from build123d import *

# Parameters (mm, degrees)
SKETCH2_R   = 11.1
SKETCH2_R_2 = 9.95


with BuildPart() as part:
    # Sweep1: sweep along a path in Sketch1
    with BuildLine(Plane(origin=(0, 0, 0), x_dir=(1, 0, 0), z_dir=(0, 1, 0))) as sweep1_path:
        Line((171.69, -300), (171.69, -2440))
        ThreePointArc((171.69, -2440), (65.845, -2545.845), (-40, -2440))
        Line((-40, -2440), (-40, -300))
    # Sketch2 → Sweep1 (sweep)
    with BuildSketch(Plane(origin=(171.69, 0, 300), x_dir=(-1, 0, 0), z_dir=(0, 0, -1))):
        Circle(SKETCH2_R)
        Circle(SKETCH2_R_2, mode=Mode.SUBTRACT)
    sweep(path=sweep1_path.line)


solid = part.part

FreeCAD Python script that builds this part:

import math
import FreeCAD as App
import Part
import Sketcher
Q = App.Units.Quantity

doc = App.newDocument("Part")
body = doc.addObject("PartDesign::Body", "Body")

sketch1 = body.newObject("Sketcher::SketchObject", "Sketch")
sketch1.AttachmentSupport = (doc.getObject("XY_Plane"), [""])
sketch1.MapMode = "FlatFace"
sketch1.AttachmentOffset = App.Placement(App.Vector(0, 0, 300), App.Rotation())
sketch1.addGeometry([
    Part.Circle(App.Vector(172, 0, 0), App.Vector(0, 0, 1), 11),
    Part.Circle(App.Vector(172, 0, 0), App.Vector(0, 0, 1), 10),
], False)
sketch1.addConstraint([
    Sketcher.Constraint("Coincident", 1, 3, 0, 3),
    Sketcher.Constraint("PointOnObject", 0, 3, -1),
    Sketcher.Constraint("Diameter", 0, Q("22.2 mm")),
    Sketcher.Constraint("Diameter", 1, Q("19.9 mm")),
    Sketcher.Constraint("DistanceX", -1, 1, 0, 3, Q("171.69 mm")),
])

sketch2 = body.newObject("Sketcher::SketchObject", "Sketch001")
sketch2.AttachmentSupport = (doc.getObject("XZ_Plane"), [""])
sketch2.MapMode = "FlatFace"
sketch2.addGeometry([
    Part.LineSegment(App.Vector(172, 300, 0), App.Vector(172, 2440, 0)),
    Part.ArcOfCircle(Part.Circle(App.Vector(66, 2440, 0), App.Vector(0, 0, 1), 106), math.radians(0), math.radians(180)),
    Part.LineSegment(App.Vector(-40, 2440, 0), App.Vector(-40, 300, 0)),
], False)
sketch2.addConstraint([
    Sketcher.Constraint("Tangent", 0, 2, 1, 1),
    Sketcher.Constraint("Tangent", 1, 2, 2, 1),
    Sketcher.Constraint("Vertical", 0),
    Sketcher.Constraint("Vertical", 2),
    Sketcher.Constraint("Horizontal", 0, 1, 2, 2),
    Sketcher.Constraint("DistanceY", 0, 1, 0, 2, Q("2140 mm")),
    Sketcher.Constraint("DistanceY", -1, 1, 1, 3, Q("2440 mm")),
    Sketcher.Constraint("DistanceX", 1, 2, -1, 1, Q("40 mm")),
    Sketcher.Constraint("Radius", 1, Q("105.845 mm")),
])
doc.recompute()

additivepipe = body.newObject("PartDesign::AdditivePipe", "AdditivePipe")
additivepipe.Profile = sketch1
additivepipe.Spine = (sketch2, ["Edge1", "Edge2", "Edge3"])

doc.recompute()
